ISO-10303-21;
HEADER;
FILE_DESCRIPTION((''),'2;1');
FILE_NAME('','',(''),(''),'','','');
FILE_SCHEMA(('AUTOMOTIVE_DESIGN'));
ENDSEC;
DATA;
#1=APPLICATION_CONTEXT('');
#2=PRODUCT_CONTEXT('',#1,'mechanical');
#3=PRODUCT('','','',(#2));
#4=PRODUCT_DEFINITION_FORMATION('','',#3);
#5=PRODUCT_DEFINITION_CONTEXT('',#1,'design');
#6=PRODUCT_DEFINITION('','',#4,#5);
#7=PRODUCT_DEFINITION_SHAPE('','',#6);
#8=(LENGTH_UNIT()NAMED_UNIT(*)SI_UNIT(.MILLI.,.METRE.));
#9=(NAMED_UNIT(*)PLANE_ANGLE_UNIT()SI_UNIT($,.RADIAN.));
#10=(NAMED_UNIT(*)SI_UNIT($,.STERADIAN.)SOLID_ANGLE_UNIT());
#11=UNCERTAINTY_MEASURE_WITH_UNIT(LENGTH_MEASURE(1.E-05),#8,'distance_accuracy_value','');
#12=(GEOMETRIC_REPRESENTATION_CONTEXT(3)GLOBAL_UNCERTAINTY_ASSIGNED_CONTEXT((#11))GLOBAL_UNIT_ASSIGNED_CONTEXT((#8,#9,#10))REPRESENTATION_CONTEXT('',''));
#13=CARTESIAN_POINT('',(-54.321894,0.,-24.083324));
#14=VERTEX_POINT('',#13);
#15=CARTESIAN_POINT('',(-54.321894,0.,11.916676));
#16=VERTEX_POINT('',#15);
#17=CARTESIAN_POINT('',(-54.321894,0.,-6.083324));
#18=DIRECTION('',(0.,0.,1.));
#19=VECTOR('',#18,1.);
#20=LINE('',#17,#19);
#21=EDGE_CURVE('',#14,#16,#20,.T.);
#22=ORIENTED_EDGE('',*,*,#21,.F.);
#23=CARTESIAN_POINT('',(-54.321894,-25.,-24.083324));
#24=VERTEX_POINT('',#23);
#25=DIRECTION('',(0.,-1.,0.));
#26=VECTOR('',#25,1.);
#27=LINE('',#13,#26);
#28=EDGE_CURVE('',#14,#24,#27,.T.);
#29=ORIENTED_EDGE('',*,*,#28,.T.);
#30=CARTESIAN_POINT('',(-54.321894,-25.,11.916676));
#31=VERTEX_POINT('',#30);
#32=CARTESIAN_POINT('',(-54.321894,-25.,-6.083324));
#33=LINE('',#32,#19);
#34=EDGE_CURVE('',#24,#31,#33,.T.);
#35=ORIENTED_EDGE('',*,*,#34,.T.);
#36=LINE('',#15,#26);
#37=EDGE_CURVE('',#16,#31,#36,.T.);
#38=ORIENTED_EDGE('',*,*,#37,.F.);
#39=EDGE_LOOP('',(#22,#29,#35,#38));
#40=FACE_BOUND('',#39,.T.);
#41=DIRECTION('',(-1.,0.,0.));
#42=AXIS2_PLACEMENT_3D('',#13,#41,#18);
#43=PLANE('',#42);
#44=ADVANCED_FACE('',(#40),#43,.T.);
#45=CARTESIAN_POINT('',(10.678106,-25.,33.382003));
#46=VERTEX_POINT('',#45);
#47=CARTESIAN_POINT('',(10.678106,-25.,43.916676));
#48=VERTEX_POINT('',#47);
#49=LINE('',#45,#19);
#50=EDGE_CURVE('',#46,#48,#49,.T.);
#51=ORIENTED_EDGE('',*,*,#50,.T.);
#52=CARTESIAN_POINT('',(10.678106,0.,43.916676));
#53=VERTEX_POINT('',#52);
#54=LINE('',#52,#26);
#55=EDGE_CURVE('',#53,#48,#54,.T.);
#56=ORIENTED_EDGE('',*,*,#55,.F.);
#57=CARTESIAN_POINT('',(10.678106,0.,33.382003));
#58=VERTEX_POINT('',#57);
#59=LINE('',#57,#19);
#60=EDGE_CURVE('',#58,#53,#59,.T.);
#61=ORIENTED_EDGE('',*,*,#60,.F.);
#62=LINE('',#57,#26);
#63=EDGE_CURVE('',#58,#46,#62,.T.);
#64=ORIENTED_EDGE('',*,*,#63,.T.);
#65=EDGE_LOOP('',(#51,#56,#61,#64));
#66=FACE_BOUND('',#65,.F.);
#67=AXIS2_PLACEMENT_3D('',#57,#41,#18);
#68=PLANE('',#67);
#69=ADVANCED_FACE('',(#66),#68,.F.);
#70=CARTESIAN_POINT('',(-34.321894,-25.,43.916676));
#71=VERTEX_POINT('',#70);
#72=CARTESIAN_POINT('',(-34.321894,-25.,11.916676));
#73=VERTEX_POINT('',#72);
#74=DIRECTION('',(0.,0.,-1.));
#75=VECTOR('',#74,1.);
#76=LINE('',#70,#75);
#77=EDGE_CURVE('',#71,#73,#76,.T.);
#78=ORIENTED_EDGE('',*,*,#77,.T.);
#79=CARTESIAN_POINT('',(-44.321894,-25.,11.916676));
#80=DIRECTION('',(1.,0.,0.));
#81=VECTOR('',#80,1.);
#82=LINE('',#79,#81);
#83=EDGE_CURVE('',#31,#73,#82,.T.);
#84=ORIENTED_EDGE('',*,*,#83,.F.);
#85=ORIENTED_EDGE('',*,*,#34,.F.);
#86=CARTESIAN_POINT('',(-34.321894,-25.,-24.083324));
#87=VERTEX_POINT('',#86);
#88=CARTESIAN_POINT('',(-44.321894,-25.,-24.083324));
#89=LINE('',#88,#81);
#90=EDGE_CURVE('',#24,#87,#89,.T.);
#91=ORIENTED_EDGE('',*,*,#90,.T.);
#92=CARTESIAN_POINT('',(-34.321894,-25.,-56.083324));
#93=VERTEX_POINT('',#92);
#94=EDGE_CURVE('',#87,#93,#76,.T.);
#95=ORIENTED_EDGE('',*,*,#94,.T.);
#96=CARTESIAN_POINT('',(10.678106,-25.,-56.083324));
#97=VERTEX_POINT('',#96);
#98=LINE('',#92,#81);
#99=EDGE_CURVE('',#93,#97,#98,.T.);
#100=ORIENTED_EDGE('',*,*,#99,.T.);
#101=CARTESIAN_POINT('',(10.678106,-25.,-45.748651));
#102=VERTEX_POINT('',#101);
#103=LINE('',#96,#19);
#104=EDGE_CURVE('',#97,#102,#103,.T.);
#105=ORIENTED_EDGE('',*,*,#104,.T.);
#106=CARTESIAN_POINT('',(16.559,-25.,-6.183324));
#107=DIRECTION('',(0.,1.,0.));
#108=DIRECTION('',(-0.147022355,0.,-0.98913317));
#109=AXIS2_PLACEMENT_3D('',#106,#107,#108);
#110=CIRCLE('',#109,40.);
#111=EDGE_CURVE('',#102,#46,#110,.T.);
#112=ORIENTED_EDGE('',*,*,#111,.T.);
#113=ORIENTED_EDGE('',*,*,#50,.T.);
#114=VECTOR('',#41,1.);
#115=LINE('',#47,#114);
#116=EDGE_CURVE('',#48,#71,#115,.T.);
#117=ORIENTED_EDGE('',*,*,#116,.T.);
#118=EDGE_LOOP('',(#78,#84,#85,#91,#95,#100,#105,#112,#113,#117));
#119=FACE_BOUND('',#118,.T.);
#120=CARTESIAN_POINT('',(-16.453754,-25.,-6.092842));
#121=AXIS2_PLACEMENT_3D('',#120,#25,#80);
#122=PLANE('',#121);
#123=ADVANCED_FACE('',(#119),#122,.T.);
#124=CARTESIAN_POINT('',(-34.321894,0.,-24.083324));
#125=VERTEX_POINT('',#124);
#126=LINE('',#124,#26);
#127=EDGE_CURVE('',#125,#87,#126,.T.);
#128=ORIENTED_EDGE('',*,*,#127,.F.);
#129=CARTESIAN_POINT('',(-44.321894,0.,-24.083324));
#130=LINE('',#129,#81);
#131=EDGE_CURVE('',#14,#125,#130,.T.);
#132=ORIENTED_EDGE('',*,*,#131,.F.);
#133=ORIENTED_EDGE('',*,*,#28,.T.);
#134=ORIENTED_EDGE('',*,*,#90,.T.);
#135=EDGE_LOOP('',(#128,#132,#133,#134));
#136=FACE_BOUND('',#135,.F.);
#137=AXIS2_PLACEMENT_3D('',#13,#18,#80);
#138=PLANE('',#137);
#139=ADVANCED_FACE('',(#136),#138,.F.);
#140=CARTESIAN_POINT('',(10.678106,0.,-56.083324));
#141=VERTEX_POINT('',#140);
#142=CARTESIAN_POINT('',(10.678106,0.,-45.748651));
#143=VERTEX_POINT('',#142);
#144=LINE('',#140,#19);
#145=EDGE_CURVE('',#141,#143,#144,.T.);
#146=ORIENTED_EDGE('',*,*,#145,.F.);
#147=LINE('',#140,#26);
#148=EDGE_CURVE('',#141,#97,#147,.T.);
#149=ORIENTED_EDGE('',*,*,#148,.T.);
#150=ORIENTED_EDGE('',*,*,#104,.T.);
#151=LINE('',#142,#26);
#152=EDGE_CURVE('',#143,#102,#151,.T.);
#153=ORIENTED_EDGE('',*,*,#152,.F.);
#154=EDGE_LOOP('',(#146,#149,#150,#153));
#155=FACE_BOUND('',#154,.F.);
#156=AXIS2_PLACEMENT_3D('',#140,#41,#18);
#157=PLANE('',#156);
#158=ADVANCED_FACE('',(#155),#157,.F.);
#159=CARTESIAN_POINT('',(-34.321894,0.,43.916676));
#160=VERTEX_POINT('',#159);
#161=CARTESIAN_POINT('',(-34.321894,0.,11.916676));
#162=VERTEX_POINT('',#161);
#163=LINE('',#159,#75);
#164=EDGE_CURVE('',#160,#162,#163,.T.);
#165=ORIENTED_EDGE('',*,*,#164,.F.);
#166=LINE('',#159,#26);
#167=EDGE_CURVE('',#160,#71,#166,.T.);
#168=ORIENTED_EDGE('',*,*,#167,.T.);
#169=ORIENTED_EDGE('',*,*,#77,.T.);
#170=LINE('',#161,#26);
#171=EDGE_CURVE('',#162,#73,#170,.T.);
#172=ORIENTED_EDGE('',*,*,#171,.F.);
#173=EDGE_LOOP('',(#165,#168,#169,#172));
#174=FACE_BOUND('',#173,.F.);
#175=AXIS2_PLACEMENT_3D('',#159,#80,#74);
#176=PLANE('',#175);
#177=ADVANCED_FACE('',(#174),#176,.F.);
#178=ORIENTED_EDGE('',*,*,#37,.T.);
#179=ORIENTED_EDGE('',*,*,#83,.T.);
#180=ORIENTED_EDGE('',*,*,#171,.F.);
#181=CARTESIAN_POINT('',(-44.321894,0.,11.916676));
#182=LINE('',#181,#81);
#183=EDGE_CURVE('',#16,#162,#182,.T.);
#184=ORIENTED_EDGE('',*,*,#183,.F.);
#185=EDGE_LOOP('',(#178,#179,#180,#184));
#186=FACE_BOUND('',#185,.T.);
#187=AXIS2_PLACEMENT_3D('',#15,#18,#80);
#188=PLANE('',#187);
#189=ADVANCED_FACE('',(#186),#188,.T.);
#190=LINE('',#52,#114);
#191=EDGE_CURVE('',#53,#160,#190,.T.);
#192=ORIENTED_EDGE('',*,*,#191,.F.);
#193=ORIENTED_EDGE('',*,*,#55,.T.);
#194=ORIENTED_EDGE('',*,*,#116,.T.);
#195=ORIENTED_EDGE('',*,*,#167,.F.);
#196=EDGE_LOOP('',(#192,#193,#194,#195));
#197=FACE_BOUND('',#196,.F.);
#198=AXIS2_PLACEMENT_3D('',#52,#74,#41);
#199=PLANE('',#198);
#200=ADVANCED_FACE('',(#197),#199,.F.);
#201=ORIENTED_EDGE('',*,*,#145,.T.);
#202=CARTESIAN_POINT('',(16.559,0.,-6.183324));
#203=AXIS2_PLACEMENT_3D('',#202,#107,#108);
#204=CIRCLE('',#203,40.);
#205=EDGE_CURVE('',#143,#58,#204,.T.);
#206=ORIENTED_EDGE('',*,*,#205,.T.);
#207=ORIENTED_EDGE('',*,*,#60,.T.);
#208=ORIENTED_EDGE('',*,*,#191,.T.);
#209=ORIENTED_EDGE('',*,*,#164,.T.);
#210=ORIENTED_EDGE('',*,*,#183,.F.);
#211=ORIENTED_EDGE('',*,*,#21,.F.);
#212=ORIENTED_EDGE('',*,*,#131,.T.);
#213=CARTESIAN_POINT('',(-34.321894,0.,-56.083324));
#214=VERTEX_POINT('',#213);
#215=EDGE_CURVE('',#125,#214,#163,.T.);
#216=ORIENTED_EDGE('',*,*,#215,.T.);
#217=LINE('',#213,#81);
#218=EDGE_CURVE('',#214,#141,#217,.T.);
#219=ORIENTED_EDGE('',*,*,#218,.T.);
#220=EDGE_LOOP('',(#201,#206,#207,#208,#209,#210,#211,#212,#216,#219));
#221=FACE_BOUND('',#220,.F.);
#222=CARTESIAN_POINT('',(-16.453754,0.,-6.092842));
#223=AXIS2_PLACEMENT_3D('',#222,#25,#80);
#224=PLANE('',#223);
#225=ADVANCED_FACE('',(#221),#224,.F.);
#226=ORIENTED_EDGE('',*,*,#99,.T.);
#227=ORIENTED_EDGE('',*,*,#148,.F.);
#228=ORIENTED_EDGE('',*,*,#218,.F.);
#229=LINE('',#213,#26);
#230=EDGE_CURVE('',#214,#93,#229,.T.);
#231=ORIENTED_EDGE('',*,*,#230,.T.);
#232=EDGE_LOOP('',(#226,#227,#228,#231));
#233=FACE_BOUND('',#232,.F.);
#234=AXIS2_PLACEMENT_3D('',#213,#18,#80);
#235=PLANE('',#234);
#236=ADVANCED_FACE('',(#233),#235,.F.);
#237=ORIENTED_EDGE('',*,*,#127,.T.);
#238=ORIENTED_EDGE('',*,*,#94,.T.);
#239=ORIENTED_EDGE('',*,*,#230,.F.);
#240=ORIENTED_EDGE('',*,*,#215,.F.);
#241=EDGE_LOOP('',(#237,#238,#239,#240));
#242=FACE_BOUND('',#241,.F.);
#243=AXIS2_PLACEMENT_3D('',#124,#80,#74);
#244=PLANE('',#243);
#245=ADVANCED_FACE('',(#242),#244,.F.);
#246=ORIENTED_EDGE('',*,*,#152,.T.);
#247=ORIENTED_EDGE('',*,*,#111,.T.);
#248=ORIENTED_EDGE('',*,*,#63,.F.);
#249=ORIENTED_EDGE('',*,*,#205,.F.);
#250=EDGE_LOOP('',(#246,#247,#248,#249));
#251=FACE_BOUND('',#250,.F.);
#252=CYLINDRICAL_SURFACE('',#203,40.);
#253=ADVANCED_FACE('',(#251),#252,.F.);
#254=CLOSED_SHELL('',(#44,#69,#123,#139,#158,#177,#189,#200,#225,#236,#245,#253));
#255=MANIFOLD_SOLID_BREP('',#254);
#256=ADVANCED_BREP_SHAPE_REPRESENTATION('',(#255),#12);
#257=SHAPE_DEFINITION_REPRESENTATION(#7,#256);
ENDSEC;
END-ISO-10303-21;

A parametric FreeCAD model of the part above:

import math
import FreeCAD as App
import Part
import Sketcher

doc = App.newDocument("Part")
body = doc.addObject("PartDesign::Body", "Body")

# Sketch on XZ plane
sketch1 = body.newObject("Sketcher::SketchObject", "Sketch")
sketch1.AttachmentSupport = (doc.getObject("XZ_Plane"), [""])
sketch1.MapMode = "FlatFace"
sketch1.addGeometry([
    Part.LineSegment(App.Vector(11, 44, 0), App.Vector(-34, 44, 0)),  # 0
    Part.LineSegment(App.Vector(-34, 44, 0), App.Vector(-34, 12, 0)),  # 1
    Part.LineSegment(App.Vector(-34, 12, 0), App.Vector(-54, 12, 0)),  # 2
    Part.LineSegment(App.Vector(-54, 12, 0), App.Vector(-54, -24, 0)),  # 3
    Part.LineSegment(App.Vector(-54, -24, 0), App.Vector(-34, -24, 0)),  # 4
    Part.LineSegment(App.Vector(-34, -24, 0), App.Vector(-34, -56, 0)),  # 5
    Part.LineSegment(App.Vector(-34, -56, 0), App.Vector(11, -56, 0)),  # 6
    Part.LineSegment(App.Vector(11, -56, 0), App.Vector(11, -46, 0)),  # 7
    Part.ArcOfCircle(Part.Circle(App.Vector(17, -6, 0), App.Vector(0, 0, 1), 40), math.radians(98), math.radians(262)),  # 8
    Part.LineSegment(App.Vector(11, 33, 0), App.Vector(11, 44, 0)),  # 9
], False)
sketch1.addConstraint([
    Sketcher.Constraint("Coincident", 0, 2, 1, 1),
    Sketcher.Constraint("Coincident", 1, 2, 2, 1),
    Sketcher.Constraint("Coincident", 2, 2, 3, 1),
    Sketcher.Constraint("Coincident", 3, 2, 4, 1),
    Sketcher.Constraint("Coincident", 4, 2, 5, 1),
    Sketcher.Constraint("Coincident", 5, 2, 6, 1),
    Sketcher.Constraint("Coincident", 6, 2, 7, 1),
    Sketcher.Constraint("Coincident", 7, 2, 8, 2),
    Sketcher.Constraint("Coincident", 8, 1, 9, 1),
    Sketcher.Constraint("Coincident", 9, 2, 0, 1),
    Sketcher.Constraint("Horizontal", 0),
    Sketcher.Constraint("Vertical", 1),
    Sketcher.Constraint("Horizontal", 2),
    Sketcher.Constraint("Vertical", 3),
    Sketcher.Constraint("Horizontal", 4),
    Sketcher.Constraint("Vertical", 5),
    Sketcher.Constraint("Horizontal", 6),
    Sketcher.Constraint("Vertical", 7),
    Sketcher.Constraint("Vertical", 9),
    Sketcher.Constraint("Vertical", 1, 2, 4, 2),
    Sketcher.Constraint("Vertical", 7, 2, 8, 1),
    Sketcher.Constraint("Equal", 1, 5),
    Sketcher.Constraint("Radius", 8, 40.0),
    Sketcher.Constraint("DistanceX", 0, 2, 0, 1, 45.0),
    Sketcher.Constraint("DistanceX", 2, 2, 2, 1, 20.0),
    Sketcher.Constraint("DistanceY", 1, 2, 1, 1, 32.0),
    Sketcher.Constraint("DistanceY", 3, 2, 3, 1, 36.0),
    Sketcher.Constraint("DistanceY", 8, 3, 0, 2, 50.1),
    Sketcher.Constraint("DistanceX", -1, 1, 8, 3, 16.559),
    Sketcher.Constraint("DistanceY", 7, 1, 7, 2, 10.334673),
    Sketcher.Constraint("DistanceY", 7, 2, -1, 1, 45.748651),
])
pad1 = body.newObject("PartDesign::Pad", "Pad")
pad1.Profile = sketch1
pad1.Length = 25

doc.recompute()
